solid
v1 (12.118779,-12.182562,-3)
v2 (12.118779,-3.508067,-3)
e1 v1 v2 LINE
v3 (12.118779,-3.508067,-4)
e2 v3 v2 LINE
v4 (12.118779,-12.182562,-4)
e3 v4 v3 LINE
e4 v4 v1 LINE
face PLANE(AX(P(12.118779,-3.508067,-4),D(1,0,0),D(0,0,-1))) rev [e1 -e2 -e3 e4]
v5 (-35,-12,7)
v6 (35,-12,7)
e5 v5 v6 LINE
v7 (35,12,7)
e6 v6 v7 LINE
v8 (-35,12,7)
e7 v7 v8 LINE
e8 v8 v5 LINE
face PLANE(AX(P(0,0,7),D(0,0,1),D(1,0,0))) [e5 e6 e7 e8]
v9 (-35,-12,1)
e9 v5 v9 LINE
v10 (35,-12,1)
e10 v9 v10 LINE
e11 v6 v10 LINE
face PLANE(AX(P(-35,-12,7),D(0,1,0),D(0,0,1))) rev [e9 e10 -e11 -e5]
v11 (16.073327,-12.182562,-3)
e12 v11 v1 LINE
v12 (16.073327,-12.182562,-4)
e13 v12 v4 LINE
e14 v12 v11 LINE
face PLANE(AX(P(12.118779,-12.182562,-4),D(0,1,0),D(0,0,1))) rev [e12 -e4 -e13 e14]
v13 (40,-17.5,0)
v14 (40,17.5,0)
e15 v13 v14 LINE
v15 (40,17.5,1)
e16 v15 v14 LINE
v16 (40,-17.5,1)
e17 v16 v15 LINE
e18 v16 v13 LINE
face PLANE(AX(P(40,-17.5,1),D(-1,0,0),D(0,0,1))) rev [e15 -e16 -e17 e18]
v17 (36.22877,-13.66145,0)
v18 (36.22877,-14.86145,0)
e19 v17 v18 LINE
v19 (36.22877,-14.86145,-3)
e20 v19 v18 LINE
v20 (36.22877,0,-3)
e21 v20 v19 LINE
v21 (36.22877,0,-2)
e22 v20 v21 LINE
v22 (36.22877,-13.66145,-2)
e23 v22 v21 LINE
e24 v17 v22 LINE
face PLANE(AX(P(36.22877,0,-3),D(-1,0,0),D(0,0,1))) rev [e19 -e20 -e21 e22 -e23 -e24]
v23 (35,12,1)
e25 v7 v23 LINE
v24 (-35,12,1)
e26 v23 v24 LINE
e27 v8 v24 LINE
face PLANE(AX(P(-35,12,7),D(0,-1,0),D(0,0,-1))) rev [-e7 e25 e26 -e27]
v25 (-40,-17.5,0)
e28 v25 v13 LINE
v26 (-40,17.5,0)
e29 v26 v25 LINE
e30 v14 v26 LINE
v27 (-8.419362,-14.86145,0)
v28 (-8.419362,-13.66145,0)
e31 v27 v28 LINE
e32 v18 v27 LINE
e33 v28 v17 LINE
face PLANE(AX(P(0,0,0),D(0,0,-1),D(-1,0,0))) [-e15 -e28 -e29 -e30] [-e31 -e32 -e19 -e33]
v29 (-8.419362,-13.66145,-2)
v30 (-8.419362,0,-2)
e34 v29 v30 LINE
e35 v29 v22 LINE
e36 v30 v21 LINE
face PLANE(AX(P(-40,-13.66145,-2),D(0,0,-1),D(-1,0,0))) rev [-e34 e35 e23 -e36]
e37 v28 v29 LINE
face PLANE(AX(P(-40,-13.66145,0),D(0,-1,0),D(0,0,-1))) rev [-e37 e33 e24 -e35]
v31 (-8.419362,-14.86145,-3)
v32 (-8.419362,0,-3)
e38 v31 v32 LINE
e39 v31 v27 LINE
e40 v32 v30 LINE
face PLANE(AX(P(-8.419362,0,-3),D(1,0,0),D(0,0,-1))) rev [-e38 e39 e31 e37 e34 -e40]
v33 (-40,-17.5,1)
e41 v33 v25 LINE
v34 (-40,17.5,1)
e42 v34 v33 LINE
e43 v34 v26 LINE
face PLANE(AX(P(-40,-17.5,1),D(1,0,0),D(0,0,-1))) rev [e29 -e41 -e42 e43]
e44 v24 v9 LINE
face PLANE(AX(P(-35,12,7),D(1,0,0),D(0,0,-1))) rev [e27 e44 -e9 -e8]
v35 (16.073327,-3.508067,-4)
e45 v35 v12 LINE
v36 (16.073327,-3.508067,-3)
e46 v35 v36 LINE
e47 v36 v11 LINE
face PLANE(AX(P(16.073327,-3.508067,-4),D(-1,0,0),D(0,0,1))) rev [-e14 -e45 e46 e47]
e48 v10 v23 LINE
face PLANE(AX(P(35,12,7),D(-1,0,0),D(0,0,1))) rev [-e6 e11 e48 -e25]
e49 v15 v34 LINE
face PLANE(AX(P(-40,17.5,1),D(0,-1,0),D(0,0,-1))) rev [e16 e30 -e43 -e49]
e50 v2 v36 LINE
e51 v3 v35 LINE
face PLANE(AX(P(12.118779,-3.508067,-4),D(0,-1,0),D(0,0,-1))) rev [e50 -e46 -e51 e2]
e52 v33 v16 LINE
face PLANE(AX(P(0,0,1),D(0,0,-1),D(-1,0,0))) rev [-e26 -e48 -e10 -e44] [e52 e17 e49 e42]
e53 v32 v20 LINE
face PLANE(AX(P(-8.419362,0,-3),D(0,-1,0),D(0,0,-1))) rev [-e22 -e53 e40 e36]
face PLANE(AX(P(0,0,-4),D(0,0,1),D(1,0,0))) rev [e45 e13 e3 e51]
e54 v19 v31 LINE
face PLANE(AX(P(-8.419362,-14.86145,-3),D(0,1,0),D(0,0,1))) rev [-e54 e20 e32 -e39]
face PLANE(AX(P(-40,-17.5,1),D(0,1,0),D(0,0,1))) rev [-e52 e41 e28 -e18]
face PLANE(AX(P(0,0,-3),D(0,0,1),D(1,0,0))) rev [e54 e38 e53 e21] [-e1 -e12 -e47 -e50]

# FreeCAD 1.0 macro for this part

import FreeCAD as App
import Part
import Sketcher
from FreeCAD import Vector


def add_polygon(sketch, points):
    """Adds a closed chain of lines whose ends are joined by coincident constraints."""
    first, n = sketch.GeometryCount, len(points)
    for a, b in zip(points, points[1:] + points[:1]):
        sketch.addGeometry(Part.LineSegment(App.Vector(*a, 0), App.Vector(*b, 0)), False)
    for i in range(n):
        sketch.addConstraint(Sketcher.Constraint("Coincident", first + i, 2, first + (i + 1) % n, 1))

doc = App.newDocument("Part")
body = doc.addObject("PartDesign::Body", "Body")

# Sketch on XY plane
sketch1 = body.newObject("Sketcher::SketchObject", "Sketch")
sketch1.AttachmentSupport = (doc.getObject("XY_Plane"), [""])
sketch1.MapMode = "FlatFace"
add_polygon(sketch1, [(-40, 18), (-40, -18), (40, -18), (40, 18)])  # lines 0-3
sketch1.addConstraint([
    Sketcher.Constraint("Vertical", 0),
    Sketcher.Constraint("Horizontal", 1),
    Sketcher.Constraint("Vertical", 2),
    Sketcher.Constraint("Horizontal", 3),
    Sketcher.Constraint("Symmetric", 0, 2, 2, 2, -1, 1),
    Sketcher.Constraint("DistanceX", 1, 1, 1, 2, 80.0),
    Sketcher.Constraint("DistanceY", 0, 2, 0, 1, 35.0),
])
pad1 = body.newObject("PartDesign::Pad", "Pad")
pad1.Profile = sketch1
pad1.Length = 1

# Sketch on XY plane
sketch2 = body.newObject("Sketcher::SketchObject", "Sketch001")
sketch2.AttachmentSupport = (doc.getObject("XY_Plane"), [""])
sketch2.MapMode = "FlatFace"
sketch2.AttachmentOffset = App.Placement(Vector(0, 0, 1), App.Rotation())
add_polygon(sketch2, [(-35, 12), (-35, -12), (35, -12), (35, 12)])  # lines 0-3
sketch2.addConstraint([
    Sketcher.Constraint("Vertical", 0),
    Sketcher.Constraint("Horizontal", 1),
    Sketcher.Constraint("Vertical", 2),
    Sketcher.Constraint("Horizontal", 3),
    Sketcher.Constraint("Symmetric", 0, 2, 2, 2, -1, 1),
    Sketcher.Constraint("DistanceX", 1, 1, 1, 2, 70.0),
    Sketcher.Constraint("DistanceY", 0, 2, 0, 1, 24.0),
])
pad2 = body.newObject("PartDesign::Pad", "Pad001")
pad2.Profile = sketch2
pad2.Length = 6

# Sketch on XY plane
sketch3 = body.newObject("Sketcher::SketchObject", "Sketch002")
sketch3.AttachmentSupport = (doc.getObject("XY_Plane"), [""])
sketch3.MapMode = "FlatFace"
add_polygon(sketch3, [(36, 0), (36, -15), (-8, -15), (-8, 0)])  # lines 0-3
sketch3.addConstraint([
    Sketcher.Constraint("Vertical", 0),
    Sketcher.Constraint("Horizontal", 1),
    Sketcher.Constraint("Vertical", 2),
    Sketcher.Constraint("Horizontal", 3),
    Sketcher.Constraint("PointOnObject", 2, 2, -1),
    Sketcher.Constraint("DistanceX", 1, 2, 1, 1, 44.648132),
    Sketcher.Constraint("DistanceY", 0, 2, 0, 1, 14.86145),
    Sketcher.Constraint("DistanceX", -1, 1, 0, 2, 36.22877),
])
pad3 = body.newObject("PartDesign::Pad", "Pad002")
pad3.Profile = sketch3
pad3.Length = 3
pad3.Reversed = True

# Sketch on YZ plane
sketch4 = body.newObject("Sketcher::SketchObject", "Sketch003")
sketch4.AttachmentSupport = (doc.getObject("YZ_Plane"), [""])
sketch4.MapMode = "FlatFace"
sketch4.AttachmentOffset = App.Placement(Vector(0, 0, 36.22877), App.Rotation())
add_polygon(sketch4, [(0.5, 0), (-13.7, 0), (-13.7, -2), (0.5, -2)])  # lines 0-3
sketch4.addConstraint([
    Sketcher.Constraint("Horizontal", 0),
    Sketcher.Constraint("Vertical", 1),
    Sketcher.Constraint("Horizontal", 2),
    Sketcher.Constraint("Vertical", 3),
    Sketcher.Constraint("PointOnObject", 0, 2, -1),
    Sketcher.Constraint("DistanceY", 1, 2, 1, 1, 2.0),
    Sketcher.Constraint("DistanceX", 0, 2, 0, 1, 14.19577),
    Sketcher.Constraint("DistanceX", 0, 2, -1, 1, 13.66145),
])
pocket1 = body.newObject("PartDesign::Pocket", "Pocket")
pocket1.Profile = sketch4
pocket1.Type = "ThroughAll"

# Sketch on XY plane
sketch5 = body.newObject("Sketcher::SketchObject", "Sketch004")
sketch5.AttachmentSupport = (doc.getObject("XY_Plane"), [""])
sketch5.MapMode = "FlatFace"
sketch5.AttachmentOffset = App.Placement(Vector(0, 0, -3), App.Rotation())
add_polygon(sketch5, [(16.1, -3.5), (16.1, -12.2), (12.1, -12.2), (12.1, -3.5)])  # lines 0-3
sketch5.addConstraint([
    Sketcher.Constraint("Vertical", 0),
    Sketcher.Constraint("Horizontal", 1),
    Sketcher.Constraint("Vertical", 2),
    Sketcher.Constraint("Horizontal", 3),
    Sketcher.Constraint("DistanceX", 1, 2, 1, 1, 3.954549),
    Sketcher.Constraint("DistanceY", 0, 2, 0, 1, 8.674494),
    Sketcher.Constraint("DistanceY", 0, 2, -1, 1, 12.182562),
    Sketcher.Constraint("DistanceX", -1, 1, 1, 2, 12.118779),
])
pad4 = body.newObject("PartDesign::Pad", "Pad003")
pad4.Profile = sketch5
pad4.Length = 1
pad4.Reversed = True

doc.recompute()
